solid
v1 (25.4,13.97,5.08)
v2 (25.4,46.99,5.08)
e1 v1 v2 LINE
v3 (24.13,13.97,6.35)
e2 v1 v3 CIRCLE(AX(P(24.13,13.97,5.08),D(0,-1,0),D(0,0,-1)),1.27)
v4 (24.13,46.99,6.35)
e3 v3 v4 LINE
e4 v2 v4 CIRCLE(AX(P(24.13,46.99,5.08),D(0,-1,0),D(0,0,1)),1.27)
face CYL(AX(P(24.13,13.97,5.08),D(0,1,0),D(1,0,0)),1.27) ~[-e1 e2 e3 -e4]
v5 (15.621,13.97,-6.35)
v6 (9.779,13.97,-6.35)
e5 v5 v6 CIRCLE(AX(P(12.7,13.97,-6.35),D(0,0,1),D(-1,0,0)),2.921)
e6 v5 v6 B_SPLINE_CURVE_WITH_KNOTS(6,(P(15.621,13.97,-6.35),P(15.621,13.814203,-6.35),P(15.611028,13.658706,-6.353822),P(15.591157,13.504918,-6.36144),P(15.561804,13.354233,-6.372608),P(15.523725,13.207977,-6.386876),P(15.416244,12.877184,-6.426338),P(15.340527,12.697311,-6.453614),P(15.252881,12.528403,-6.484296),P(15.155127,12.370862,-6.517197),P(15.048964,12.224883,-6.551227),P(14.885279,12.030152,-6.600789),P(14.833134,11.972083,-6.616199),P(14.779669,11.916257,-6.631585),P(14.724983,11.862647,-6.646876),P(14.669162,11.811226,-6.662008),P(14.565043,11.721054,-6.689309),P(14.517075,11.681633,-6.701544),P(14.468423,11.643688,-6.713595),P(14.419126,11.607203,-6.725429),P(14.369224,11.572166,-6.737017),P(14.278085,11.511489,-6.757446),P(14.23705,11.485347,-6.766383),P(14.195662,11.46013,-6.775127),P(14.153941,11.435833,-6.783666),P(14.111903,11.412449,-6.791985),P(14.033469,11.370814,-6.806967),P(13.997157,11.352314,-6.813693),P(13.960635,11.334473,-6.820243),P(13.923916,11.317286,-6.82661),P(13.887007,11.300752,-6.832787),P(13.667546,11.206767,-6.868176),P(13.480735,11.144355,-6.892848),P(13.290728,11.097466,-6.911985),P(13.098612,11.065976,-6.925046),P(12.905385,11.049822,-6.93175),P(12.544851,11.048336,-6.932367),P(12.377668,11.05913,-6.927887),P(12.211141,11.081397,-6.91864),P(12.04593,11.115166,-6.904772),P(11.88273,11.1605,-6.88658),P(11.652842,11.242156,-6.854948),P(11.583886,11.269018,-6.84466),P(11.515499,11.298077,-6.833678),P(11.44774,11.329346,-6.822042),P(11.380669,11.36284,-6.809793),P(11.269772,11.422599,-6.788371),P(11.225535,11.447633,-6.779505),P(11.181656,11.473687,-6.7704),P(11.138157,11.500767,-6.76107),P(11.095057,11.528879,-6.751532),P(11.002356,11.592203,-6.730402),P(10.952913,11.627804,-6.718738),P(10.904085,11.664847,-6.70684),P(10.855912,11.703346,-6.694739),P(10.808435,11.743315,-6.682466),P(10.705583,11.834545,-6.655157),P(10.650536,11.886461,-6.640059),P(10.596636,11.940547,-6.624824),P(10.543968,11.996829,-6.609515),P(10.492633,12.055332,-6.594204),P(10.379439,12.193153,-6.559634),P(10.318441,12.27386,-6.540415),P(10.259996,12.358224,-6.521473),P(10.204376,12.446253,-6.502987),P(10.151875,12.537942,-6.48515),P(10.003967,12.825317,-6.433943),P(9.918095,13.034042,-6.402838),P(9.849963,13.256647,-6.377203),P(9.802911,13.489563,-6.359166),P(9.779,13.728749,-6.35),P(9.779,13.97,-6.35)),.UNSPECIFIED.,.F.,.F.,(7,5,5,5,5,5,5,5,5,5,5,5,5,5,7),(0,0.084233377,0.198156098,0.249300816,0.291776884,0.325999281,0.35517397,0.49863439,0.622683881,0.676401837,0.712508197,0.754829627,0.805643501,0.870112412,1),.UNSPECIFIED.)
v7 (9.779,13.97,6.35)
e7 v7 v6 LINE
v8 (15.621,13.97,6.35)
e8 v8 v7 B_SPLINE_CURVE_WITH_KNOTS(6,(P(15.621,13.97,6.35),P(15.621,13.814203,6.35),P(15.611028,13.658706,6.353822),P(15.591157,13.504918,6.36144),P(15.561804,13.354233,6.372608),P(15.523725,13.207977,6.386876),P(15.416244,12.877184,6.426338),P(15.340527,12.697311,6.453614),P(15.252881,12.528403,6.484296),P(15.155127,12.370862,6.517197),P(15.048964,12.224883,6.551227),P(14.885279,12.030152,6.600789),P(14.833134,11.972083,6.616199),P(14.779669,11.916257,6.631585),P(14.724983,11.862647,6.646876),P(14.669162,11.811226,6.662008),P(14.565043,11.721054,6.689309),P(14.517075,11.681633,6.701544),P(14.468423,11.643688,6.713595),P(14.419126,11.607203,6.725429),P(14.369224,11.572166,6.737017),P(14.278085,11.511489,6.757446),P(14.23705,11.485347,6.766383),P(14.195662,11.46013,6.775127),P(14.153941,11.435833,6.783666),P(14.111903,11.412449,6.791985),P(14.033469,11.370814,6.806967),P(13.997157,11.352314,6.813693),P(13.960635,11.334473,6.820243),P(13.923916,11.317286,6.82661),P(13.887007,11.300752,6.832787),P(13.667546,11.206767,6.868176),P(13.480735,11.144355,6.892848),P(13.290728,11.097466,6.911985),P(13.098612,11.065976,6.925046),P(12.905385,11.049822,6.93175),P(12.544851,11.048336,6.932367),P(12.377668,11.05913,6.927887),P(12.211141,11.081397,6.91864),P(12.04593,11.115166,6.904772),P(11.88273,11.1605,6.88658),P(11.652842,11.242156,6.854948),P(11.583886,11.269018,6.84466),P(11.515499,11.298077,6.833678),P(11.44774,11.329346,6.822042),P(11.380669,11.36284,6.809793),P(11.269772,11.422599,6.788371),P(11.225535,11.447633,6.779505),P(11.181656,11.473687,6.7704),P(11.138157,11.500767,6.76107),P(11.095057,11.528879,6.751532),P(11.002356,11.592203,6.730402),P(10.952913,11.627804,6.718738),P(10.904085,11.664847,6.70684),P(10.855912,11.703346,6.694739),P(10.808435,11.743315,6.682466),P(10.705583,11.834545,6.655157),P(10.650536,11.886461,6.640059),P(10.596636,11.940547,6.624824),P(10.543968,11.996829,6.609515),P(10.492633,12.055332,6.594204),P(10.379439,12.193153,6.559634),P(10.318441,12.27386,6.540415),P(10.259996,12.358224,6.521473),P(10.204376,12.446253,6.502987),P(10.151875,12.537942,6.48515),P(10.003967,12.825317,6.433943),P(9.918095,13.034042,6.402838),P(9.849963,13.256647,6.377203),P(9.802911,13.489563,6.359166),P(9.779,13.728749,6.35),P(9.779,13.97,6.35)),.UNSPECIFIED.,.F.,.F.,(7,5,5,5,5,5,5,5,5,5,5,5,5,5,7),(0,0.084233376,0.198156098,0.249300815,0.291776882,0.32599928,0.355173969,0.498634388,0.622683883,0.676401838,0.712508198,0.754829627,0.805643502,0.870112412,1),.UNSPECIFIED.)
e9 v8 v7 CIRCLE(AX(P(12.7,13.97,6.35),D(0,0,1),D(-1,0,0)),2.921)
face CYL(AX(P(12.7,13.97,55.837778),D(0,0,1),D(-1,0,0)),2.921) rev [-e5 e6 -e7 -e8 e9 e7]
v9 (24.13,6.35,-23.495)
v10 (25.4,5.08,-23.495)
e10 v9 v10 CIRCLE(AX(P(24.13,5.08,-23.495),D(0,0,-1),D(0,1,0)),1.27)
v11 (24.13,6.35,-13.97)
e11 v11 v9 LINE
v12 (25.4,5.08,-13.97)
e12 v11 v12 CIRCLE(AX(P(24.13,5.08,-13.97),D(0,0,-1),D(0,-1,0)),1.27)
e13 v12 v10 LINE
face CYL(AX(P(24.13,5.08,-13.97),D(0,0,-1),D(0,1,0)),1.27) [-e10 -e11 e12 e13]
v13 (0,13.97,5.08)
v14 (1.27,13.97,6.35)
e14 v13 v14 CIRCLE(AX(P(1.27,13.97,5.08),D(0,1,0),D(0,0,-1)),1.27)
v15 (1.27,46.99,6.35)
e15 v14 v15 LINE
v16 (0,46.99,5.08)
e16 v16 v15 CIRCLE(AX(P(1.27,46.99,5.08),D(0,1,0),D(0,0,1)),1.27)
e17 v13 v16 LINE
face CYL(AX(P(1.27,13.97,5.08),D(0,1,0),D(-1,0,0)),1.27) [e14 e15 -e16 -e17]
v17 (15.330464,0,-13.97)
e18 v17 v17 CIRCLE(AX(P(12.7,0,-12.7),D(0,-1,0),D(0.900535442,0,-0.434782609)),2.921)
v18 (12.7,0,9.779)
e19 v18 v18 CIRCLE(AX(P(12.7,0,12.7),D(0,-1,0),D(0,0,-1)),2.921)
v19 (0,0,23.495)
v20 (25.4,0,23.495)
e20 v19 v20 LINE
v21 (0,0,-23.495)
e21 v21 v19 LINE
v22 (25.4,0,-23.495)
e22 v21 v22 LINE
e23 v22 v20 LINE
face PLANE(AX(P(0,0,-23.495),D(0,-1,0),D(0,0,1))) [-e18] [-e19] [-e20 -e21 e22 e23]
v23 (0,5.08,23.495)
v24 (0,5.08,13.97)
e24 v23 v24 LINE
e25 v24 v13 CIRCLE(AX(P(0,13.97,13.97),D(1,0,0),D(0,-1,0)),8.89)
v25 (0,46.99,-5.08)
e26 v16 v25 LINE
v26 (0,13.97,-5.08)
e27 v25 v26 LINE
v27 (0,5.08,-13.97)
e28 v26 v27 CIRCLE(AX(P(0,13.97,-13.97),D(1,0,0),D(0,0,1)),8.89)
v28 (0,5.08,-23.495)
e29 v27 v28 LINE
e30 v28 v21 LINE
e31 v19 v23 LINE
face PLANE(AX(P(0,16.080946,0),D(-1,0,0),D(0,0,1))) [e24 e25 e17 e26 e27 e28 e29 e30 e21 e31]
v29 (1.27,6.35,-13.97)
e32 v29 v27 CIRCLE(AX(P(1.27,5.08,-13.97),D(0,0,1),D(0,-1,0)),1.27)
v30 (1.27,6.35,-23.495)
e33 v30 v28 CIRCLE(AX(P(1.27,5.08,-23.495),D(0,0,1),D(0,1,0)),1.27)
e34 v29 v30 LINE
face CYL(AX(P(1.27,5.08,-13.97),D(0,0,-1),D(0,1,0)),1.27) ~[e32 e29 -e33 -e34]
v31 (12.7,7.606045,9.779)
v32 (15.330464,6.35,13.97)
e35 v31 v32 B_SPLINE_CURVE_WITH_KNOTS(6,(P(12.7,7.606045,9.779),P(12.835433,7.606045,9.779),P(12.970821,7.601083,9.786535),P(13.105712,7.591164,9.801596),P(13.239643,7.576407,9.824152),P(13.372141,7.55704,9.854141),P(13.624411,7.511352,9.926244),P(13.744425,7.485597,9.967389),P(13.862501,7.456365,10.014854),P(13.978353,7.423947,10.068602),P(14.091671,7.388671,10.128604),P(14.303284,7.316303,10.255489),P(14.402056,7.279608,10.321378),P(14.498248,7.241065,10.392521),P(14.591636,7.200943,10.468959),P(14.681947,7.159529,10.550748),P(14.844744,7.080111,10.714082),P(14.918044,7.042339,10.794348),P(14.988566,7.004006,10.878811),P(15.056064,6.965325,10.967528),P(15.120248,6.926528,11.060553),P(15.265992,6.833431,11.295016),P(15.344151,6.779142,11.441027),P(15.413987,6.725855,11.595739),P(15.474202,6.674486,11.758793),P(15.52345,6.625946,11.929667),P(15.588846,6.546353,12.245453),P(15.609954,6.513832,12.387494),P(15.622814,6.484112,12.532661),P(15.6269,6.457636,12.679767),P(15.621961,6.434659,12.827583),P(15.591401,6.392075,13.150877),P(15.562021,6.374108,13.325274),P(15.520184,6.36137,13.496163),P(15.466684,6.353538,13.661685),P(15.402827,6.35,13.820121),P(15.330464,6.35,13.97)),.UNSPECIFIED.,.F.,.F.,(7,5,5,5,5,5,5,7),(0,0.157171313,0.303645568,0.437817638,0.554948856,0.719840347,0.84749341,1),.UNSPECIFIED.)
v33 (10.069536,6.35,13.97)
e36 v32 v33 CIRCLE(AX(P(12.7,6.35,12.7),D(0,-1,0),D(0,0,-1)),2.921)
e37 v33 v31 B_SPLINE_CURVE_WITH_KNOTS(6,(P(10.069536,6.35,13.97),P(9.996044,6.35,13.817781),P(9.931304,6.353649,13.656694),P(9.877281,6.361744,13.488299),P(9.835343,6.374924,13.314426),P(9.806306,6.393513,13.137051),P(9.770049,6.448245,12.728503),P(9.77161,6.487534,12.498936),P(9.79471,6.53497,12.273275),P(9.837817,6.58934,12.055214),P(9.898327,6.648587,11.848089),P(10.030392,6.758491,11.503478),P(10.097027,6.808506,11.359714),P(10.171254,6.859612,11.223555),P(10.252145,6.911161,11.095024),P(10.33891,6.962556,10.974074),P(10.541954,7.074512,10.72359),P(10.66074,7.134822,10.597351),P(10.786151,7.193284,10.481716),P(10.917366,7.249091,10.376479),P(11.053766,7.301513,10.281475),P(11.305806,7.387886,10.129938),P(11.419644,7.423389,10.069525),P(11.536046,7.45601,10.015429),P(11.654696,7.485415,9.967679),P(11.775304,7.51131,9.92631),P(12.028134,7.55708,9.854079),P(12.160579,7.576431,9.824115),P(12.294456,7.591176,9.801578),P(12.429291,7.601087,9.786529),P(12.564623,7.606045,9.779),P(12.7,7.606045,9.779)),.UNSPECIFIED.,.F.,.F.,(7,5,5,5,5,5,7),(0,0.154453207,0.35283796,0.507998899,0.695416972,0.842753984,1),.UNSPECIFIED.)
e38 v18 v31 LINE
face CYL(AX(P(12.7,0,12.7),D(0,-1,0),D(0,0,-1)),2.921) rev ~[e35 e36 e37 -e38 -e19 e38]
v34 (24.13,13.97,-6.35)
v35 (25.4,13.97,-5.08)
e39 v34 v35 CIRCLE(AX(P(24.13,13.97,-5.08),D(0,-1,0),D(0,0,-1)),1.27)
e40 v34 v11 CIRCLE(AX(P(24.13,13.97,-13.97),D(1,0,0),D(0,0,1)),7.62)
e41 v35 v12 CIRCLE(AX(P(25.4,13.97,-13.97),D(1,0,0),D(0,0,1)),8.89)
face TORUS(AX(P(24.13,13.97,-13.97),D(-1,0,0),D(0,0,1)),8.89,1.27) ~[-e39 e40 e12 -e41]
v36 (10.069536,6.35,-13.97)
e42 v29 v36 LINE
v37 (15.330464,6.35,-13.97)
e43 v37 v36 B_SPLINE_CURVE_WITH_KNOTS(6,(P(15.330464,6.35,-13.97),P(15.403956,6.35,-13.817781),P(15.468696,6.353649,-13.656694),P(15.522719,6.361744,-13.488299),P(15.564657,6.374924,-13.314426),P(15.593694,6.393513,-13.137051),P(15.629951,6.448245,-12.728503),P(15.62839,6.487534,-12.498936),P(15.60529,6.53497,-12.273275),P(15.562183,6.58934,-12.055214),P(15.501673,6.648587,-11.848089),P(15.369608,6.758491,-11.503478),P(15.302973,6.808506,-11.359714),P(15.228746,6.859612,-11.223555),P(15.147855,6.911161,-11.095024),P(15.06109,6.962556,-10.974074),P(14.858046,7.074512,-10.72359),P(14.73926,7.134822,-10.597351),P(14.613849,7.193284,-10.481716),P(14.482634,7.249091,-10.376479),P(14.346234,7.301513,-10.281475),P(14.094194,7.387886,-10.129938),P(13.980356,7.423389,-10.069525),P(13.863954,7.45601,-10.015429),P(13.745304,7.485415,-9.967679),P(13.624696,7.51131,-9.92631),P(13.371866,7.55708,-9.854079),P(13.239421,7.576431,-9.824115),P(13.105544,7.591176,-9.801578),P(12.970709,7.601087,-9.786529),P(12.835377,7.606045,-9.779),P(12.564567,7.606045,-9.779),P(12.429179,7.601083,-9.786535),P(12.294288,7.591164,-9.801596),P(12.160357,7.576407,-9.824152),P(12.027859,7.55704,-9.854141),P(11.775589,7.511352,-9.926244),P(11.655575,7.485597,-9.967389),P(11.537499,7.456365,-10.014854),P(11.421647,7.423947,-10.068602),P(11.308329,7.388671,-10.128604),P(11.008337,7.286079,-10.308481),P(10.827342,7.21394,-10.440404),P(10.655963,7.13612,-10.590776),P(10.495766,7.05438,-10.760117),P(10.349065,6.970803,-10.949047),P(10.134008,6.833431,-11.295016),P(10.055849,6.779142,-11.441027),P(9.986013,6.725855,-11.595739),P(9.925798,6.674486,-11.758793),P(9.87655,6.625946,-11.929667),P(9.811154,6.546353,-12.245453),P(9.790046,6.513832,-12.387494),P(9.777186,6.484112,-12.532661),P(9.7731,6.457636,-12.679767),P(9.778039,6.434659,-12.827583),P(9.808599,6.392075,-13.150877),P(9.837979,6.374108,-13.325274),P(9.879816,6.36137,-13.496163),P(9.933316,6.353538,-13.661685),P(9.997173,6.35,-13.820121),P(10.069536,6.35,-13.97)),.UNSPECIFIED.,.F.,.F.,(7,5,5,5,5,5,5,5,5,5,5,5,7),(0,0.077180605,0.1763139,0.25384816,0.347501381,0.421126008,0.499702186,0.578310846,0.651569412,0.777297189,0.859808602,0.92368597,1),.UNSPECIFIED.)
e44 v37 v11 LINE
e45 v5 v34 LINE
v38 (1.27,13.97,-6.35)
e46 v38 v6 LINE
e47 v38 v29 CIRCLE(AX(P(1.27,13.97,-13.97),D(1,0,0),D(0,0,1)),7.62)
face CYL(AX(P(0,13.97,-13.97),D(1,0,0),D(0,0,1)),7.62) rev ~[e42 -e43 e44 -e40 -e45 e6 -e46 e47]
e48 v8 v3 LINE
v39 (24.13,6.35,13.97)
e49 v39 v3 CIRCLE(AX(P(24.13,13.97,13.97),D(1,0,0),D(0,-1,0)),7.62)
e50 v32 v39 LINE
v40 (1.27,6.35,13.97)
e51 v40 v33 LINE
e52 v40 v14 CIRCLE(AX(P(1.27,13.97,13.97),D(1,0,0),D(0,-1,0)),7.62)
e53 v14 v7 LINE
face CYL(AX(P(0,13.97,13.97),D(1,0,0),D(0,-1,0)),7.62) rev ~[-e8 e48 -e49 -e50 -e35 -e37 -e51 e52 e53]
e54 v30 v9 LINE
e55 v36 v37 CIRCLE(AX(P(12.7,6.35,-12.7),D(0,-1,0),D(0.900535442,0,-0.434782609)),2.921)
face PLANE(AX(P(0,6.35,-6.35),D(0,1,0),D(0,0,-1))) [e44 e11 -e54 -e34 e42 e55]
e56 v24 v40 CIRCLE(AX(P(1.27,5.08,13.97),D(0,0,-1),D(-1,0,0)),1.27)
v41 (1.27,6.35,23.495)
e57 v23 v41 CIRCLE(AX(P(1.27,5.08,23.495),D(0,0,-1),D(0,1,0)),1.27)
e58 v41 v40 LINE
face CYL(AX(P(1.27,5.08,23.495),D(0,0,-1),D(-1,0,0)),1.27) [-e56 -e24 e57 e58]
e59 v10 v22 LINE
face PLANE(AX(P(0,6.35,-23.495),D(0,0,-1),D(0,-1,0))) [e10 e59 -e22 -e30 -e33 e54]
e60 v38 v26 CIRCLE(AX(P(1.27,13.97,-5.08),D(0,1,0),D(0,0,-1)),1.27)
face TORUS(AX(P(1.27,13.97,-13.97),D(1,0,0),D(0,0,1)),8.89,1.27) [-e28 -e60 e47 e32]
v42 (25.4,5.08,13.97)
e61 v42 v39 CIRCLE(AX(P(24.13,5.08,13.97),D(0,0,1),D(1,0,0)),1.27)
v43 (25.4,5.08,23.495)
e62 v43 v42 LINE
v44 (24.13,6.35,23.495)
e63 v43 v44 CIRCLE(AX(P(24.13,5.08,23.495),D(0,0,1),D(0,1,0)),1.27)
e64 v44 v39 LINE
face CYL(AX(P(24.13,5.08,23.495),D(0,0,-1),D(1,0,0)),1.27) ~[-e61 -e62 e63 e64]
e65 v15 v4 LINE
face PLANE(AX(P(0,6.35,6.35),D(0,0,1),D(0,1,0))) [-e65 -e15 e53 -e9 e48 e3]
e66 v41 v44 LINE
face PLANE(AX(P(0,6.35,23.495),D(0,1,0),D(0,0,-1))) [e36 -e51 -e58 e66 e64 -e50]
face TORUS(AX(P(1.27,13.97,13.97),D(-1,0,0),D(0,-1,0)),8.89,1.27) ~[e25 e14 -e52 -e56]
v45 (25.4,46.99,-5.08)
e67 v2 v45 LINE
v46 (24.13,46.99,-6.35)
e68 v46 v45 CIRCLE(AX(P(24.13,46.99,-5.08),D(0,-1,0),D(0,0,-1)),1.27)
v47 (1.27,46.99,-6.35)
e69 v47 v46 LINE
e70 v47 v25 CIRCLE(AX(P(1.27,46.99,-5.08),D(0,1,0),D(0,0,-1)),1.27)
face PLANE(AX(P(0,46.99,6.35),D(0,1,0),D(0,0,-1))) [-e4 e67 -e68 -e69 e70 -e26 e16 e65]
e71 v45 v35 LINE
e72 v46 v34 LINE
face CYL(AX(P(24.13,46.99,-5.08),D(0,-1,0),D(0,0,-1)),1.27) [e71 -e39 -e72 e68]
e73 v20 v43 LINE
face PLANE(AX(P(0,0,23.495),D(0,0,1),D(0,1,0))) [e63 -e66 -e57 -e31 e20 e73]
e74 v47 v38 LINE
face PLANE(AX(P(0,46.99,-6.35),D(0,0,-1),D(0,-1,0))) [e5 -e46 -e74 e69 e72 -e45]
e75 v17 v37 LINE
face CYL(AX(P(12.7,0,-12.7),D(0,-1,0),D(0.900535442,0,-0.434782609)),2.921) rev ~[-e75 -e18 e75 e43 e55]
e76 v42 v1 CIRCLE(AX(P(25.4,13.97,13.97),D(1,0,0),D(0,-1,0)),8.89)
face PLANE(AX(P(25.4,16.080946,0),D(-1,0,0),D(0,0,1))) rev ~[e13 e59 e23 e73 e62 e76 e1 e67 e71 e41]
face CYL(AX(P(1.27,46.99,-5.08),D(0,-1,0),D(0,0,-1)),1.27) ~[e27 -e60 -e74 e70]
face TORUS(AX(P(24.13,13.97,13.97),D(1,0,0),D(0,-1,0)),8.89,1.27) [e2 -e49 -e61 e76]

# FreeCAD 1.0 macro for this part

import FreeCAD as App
import Part
import Sketcher

V = App.Vector
Q = App.Units.Quantity


def edges_at(feature, points):
    """Names of the edges that pass closest to the given points."""
    edges = feature.Shape.Edges
    near = lambda p: min(range(len(edges)), key=lambda i: edges[i].distToShape(Part.Vertex(*p))[0])
    return sorted({f"Edge{near(p) + 1}" for p in points})

doc = App.newDocument("Part")
body = doc.addObject("PartDesign::Body", "Body")

# Sketch on YZ plane
sketch1 = body.newObject("Sketcher::SketchObject", "Sketch")
sketch1.AttachmentSupport = (doc.getObject("YZ_Plane"), [""])
sketch1.MapMode = "FlatFace"
sketch1.addGeometry([
    Part.LineSegment(V(46.99, -6.35, 0), V(46.99, 6.35, 0)),  # 0
    Part.LineSegment(V(46.99, 6.35, 0), V(6.35, 6.35, 0)),  # 1
    Part.LineSegment(V(6.35, 6.35, 0), V(6.35, 23.495, 0)),  # 2
    Part.LineSegment(V(6.35, 23.495, 0), V(0, 23.495, 0)),  # 3
    Part.LineSegment(V(0, 23.495, 0), V(0, -23.495, 0)),  # 4
    Part.LineSegment(V(0, -23.495, 0), V(6.35, -23.495, 0)),  # 5
    Part.LineSegment(V(6.35, -23.495, 0), V(6.35, -6.35, 0)),  # 6
    Part.LineSegment(V(6.35, -6.35, 0), V(46.99, -6.35, 0)),  # 7
], False)
sketch1.addConstraint([
    Sketcher.Constraint("Coincident", 0, 2, 1, 1),
    Sketcher.Constraint("Coincident", 1, 2, 2, 1),
    Sketcher.Constraint("Coincident", 2, 2, 3, 1),
    Sketcher.Constraint("Coincident", 3, 2, 4, 1),
    Sketcher.Constraint("Coincident", 4, 2, 5, 1),
    Sketcher.Constraint("Coincident", 5, 2, 6, 1),
    Sketcher.Constraint("Coincident", 6, 2, 7, 1),
    Sketcher.Constraint("Coincident", 7, 2, 0, 1),
    Sketcher.Constraint("Vertical", 0),
    Sketcher.Constraint("Horizontal", 1),
    Sketcher.Constraint("Vertical", 2),
    Sketcher.Constraint("Horizontal", 3),
    Sketcher.Constraint("Vertical", 4),
    Sketcher.Constraint("Horizontal", 5),
    Sketcher.Constraint("Vertical", 6),
    Sketcher.Constraint("Horizontal", 7),
    Sketcher.Constraint("Symmetric", 3, 2, 4, 2, -1, 1),
    Sketcher.Constraint("Symmetric", 1, 2, 6, 2, -1),
    Sketcher.Constraint("DistanceX", 1, 2, 1, 1, Q("1.6 in")),
    Sketcher.Constraint("DistanceY", 0, 1, 0, 2, Q("0.5 in")),
    Sketcher.Constraint("DistanceX", 3, 2, 3, 1, Q("0.25 in")),
    Sketcher.Constraint("DistanceY", 4, 2, 4, 1, Q("1.85 in")),
])
pad1 = body.newObject("PartDesign::Pad", "Pad")
pad1.Profile = sketch1
pad1.Length = Q("1 in")
doc.recompute()

fillet = body.newObject("PartDesign::Fillet", "Fillet")
fillet.Base = (pad1, edges_at(pad1, [(12.7, 6.35, -6.35), (12.7, 6.35, 6.35)]))
fillet.Radius = Q("0.3 in")

# Sketch on XZ plane
sketch2 = body.newObject("Sketcher::SketchObject", "Sketch001")
sketch2.AttachmentSupport = (doc.getObject("XZ_Plane"), [""])
sketch2.MapMode = "FlatFace"
sketch2.addGeometry([
    Part.Circle(V(12.7, 12.7, 0), V(0, 0, 1), 2.921),
    Part.Circle(V(12.7, -12.7, 0), V(0, 0, 1), 2.921),
], False)
sketch2.addConstraint([
    Sketcher.Constraint("Equal", 0, 1),
    Sketcher.Constraint("Symmetric", 0, 3, 1, 3, -1),
    Sketcher.Constraint("Diameter", 0, Q("0.23 in")),
    Sketcher.Constraint("DistanceY", 1, 3, 0, 3, Q("1 in")),
    Sketcher.Constraint("DistanceX", -1, 1, 0, 3, Q("0.5 in")),
])
pocket1 = body.newObject("PartDesign::Pocket", "Pocket")
pocket1.Profile = sketch2
pocket1.Type = "ThroughAll"
doc.recompute()

fillet2 = body.newObject("PartDesign::Fillet", "Fillet001")
fillet2.Base = (pocket1, edges_at(pocket1, [
    (0, 30.48, 6.35),
    (25.4, 30.48, 6.35),
    (0, 6.35, 18.733),
    (25.4, 6.35, 18.733),
    (0, 30.48, -6.35),
    (25.4, 30.48, -6.35),
    (0, 8.582, 8.582),
    (25.4, 8.582, 8.582),
    (0, 8.582, -8.582),
    (25.4, 8.582, -8.582),
    (25.4, 6.35, -18.733),
    (0, 6.35, -18.733),
]))
fillet2.Radius = Q("0.05 in")

# Sketch on XY plane
sketch3 = body.newObject("Sketcher::SketchObject", "Sketch002")
sketch3.AttachmentSupport = (doc.getObject("XY_Plane"), [""])
sketch3.MapMode = "FlatFace"
sketch3.AttachmentOffset = App.Placement(V(0, 0, -0.25 * 25.4), App.Rotation())
sketch3.addGeometry(Part.Circle(V(12.7, 13.97, 0), V(0, 0, 1), 2.921), False)
sketch3.addConstraint([
    Sketcher.Constraint("Diameter", 0, Q("0.23 in")),
    Sketcher.Constraint("DistanceX", -1, 1, 0, 3, Q("0.5 in")),
    Sketcher.Constraint("DistanceY", -1, 1, 0, 3, Q("0.55 in")),
])
pocket2 = body.newObject("PartDesign::Pocket", "Pocket001")
pocket2.Profile = sketch3
pocket2.Type = "ThroughAll"
pocket2.Midplane = True

doc.recompute()
